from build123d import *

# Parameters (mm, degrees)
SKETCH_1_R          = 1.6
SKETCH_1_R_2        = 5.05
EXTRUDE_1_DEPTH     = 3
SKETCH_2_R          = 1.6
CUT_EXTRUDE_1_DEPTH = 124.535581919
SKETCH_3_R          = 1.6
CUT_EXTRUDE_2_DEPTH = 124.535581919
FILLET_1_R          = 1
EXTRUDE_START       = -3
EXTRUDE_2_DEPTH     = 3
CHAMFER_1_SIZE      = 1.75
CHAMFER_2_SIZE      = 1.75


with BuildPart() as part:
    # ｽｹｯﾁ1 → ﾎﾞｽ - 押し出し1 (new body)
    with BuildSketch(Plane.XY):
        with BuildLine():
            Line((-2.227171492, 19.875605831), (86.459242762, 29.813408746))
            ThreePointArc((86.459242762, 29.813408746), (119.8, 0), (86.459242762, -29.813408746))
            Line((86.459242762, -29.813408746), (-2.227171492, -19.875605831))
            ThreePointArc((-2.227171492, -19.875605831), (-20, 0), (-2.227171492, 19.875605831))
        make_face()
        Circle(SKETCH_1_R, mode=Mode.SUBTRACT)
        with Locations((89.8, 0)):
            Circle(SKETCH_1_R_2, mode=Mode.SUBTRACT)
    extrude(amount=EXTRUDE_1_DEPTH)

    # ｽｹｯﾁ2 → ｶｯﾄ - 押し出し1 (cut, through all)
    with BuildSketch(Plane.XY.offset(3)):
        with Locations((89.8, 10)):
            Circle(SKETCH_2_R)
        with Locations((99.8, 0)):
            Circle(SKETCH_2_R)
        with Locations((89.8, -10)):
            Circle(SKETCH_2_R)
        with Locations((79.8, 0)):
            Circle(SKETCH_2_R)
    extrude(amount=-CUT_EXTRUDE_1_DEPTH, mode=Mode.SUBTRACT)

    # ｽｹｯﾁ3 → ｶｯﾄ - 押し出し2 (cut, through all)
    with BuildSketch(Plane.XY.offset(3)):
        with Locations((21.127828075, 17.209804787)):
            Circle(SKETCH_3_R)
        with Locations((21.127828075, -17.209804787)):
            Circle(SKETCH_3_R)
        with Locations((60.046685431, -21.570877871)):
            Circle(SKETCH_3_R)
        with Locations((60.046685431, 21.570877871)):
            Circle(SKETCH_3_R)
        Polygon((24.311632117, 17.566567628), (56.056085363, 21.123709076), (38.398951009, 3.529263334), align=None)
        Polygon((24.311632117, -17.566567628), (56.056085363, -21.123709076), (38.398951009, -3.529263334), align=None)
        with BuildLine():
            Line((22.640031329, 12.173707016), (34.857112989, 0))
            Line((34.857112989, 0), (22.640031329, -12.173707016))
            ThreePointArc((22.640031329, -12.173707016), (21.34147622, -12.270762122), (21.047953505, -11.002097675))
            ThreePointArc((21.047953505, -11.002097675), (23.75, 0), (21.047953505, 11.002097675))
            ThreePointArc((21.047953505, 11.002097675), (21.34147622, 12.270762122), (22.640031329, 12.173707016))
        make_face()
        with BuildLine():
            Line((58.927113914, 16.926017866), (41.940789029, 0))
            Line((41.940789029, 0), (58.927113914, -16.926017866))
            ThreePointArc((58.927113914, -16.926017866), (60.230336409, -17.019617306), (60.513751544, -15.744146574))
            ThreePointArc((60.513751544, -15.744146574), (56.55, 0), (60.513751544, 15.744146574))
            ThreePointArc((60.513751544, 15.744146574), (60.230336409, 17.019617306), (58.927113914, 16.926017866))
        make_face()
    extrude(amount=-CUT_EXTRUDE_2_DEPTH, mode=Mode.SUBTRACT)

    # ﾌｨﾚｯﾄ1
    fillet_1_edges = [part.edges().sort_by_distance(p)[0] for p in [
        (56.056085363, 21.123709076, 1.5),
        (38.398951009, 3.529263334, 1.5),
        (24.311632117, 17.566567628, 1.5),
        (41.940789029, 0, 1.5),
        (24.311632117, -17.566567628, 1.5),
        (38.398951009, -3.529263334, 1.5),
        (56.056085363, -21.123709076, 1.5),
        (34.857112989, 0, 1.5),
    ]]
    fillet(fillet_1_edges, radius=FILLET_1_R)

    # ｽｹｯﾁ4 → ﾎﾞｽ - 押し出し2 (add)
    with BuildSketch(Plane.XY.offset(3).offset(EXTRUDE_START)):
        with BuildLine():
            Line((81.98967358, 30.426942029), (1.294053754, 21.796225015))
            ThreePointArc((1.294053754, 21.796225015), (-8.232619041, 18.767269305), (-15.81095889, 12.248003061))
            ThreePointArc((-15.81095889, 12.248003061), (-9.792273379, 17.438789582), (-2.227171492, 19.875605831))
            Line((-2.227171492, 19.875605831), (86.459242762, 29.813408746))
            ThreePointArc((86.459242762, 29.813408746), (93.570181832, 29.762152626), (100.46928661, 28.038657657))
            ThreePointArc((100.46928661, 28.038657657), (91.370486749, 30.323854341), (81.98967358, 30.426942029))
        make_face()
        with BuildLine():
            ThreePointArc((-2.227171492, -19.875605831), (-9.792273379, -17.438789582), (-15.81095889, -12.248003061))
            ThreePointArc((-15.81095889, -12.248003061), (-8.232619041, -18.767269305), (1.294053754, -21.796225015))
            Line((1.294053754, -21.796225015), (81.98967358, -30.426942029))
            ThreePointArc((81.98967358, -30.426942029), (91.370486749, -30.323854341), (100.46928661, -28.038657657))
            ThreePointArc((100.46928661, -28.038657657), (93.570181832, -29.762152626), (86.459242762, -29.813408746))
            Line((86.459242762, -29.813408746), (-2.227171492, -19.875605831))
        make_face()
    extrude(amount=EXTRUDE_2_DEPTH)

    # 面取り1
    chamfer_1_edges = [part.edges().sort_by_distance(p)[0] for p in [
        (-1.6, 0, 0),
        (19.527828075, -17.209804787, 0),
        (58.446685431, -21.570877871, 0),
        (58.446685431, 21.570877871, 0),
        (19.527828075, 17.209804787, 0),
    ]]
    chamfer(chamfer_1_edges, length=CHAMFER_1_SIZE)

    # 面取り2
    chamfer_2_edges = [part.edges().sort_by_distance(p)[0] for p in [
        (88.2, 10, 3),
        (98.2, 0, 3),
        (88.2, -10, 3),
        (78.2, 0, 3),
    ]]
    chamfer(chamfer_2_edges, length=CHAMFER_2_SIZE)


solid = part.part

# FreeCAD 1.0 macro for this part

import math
import FreeCAD as App
import Part
import Sketcher
Q = App.Units.Quantity


def edges_at(feature, points):
    """Names of the edges that pass closest to the given points."""
    edges = feature.Shape.Edges
    near = lambda p: min(range(len(edges)), key=lambda i: edges[i].distToShape(Part.Vertex(*p))[0])
    return sorted({f"Edge{near(p) + 1}" for p in points})

doc = App.newDocument("Part")
params = doc.addObject("Spreadsheet::Sheet", "Params")
for row, (alias, value) in enumerate([
    ("sketch1_radius", "20 mm"),
    ("sketch1_radius2", "30 mm"),
    ("sketch1_diameter", "10.1 mm"),
    ("sketch1_diameter2", "3.2 mm"),
    ("pad1_length", "3 mm"),
    ("sketch2_diameter", "3.2 mm"),
    ("sketch3_radius", "1 mm"),
    ("sketch3_diameter", "3.2 mm"),
    ("sketch3_radius2", "23.75 mm"),
    ("sketch3_radius3", "33.25 mm"),
    ("fillet_radius", "1 mm"),
    ("sketch4_radius", "25 mm"),
    ("sketch4_radius2", "20 mm"),
    ("sketch4_radius3", "30 mm"),
    ("sketch4_radius4", "40 mm"),
    ("pad2_length", "3 mm"),
    ("chamfer_size", "1.75 mm"),
    ("chamfer2_size", "1.75 mm"),
], start=1):
    params.set(f"A{row}", alias)
    params.set(f"B{row}", "=" + value)
    params.setAlias(f"B{row}", alias)

body = doc.addObject("PartDesign::Body", "Body")

# Sketch on XY plane
sketch1 = doc.addObject("Sketcher::SketchObject", "Sketch")
body.addObject(sketch1)
sketch1.AttachmentSupport = (doc.XY_Plane, [""])
sketch1.MapMode = "FlatFace"
sketch1.addGeometry(Part.LineSegment(App.Vector(86.459243, 29.813409, 0), App.Vector(-2.227171, 19.875606, 0)), False)
sketch1.addGeometry(Part.ArcOfCircle(Part.Circle(App.Vector(0, 0, 0), App.Vector(0, 0, 1), 20), math.radians(96.393637), math.radians(263.606363)), False)
sketch1.addGeometry(Part.LineSegment(App.Vector(-2.227171, -19.875606, 0), App.Vector(86.459243, -29.813409, 0)), False)
sketch1.addGeometry(Part.ArcOfCircle(Part.Circle(App.Vector(89.8, 0, 0), App.Vector(0, 0, 1), 30), math.radians(-96.393637), math.radians(96.393637)), False)
sketch1.addGeometry(Part.Circle(App.Vector(89.8, 0, 0), App.Vector(0, 0, 1), 5.05), False)
sketch1.addGeometry(Part.Circle(App.Vector(0, 0, 0), App.Vector(0, 0, 1), 1.6), False)
sketch1.addConstraint(Sketcher.Constraint("Tangent", 0, 2, 1, 1))
sketch1.addConstraint(Sketcher.Constraint("Tangent", 1, 2, 2, 1))
sketch1.addConstraint(Sketcher.Constraint("Tangent", 2, 2, 3, 1))
sketch1.addConstraint(Sketcher.Constraint("Tangent", 3, 2, 0, 1))
sketch1.addConstraint(Sketcher.Constraint("Coincident", 1, 3, -1, 1))
sketch1.addConstraint(Sketcher.Constraint("Coincident", 5, 3, -1, 1))
sketch1.addConstraint(Sketcher.Constraint("Coincident", 4, 3, 3, 3))
sketch1.addConstraint(Sketcher.Constraint("PointOnObject", 3, 3, -1))
sketch1.addConstraint(Sketcher.Constraint("Radius", 1, Q("20 mm")))
sketch1.addConstraint(Sketcher.Constraint("Radius", 3, Q("30 mm")))
sketch1.addConstraint(Sketcher.Constraint("Diameter", 4, Q("10.1 mm")))
sketch1.addConstraint(Sketcher.Constraint("Diameter", 5, Q("3.2 mm")))
sketch1.addConstraint(Sketcher.Constraint("DistanceX", -1, 1, 3, 3, Q("89.8 mm")))
sketch1.setExpression("Constraints[8]", "Params.sketch1_radius")
sketch1.setExpression("Constraints[9]", "Params.sketch1_radius2")
sketch1.setExpression("Constraints[10]", "Params.sketch1_diameter")
sketch1.setExpression("Constraints[11]", "Params.sketch1_diameter2")
pad1 = doc.addObject("PartDesign::Pad", "Pad")
body.addObject(pad1)
pad1.Profile = sketch1
pad1.setExpression("Length", "Params.pad1_length")

# Sketch on XY plane
sketch2 = doc.addObject("Sketcher::SketchObject", "Sketch001")
body.addObject(sketch2)
sketch2.AttachmentSupport = (doc.XY_Plane, [""])
sketch2.MapMode = "FlatFace"
sketch2.AttachmentOffset = App.Placement(App.Vector(0, 0, 3), App.Rotation())
sketch2.addGeometry(Part.Circle(App.Vector(89.8, 10, 0), App.Vector(0, 0, 1), 1.6), False)
sketch2.addGeometry(Part.Circle(App.Vector(99.8, 0, 0), App.Vector(0, 0, 1), 1.6), False)
sketch2.addGeometry(Part.Circle(App.Vector(89.8, -10, 0), App.Vector(0, 0, 1), 1.6), False)
sketch2.addGeometry(Part.Circle(App.Vector(79.8, 0, 0), App.Vector(0, 0, 1), 1.6), False)
sketch2.addConstraint(Sketcher.Constraint("Equal", 0, 1))
sketch2.addConstraint(Sketcher.Constraint("Equal", 1, 2))
sketch2.addConstraint(Sketcher.Constraint("Equal", 2, 3))
sketch2.addConstraint(Sketcher.Constraint("Symmetric", 0, 3, 2, 3, -1))
sketch2.addConstraint(Sketcher.Constraint("PointOnObject", 1, 3, -1))
sketch2.addConstraint(Sketcher.Constraint("PointOnObject", 3, 3, -1))
sketch2.addConstraint(Sketcher.Constraint("Diameter", 0, Q("3.2 mm")))
sketch2.addConstraint(Sketcher.Constraint("DistanceY", -1, 1, 0, 3, Q("10 mm")))
sketch2.addConstraint(Sketcher.Constraint("DistanceX", 0, 3, 1, 3, Q("10 mm")))
sketch2.addConstraint(Sketcher.Constraint("DistanceX", 3, 3, 0, 3, Q("10 mm")))
sketch2.addConstraint(Sketcher.Constraint("DistanceX", -1, 1, 0, 3, Q("89.8 mm")))
sketch2.setExpression("Constraints[6]", "Params.sketch2_diameter")
pocket1 = doc.addObject("PartDesign::Pocket", "Pocket")
body.addObject(pocket1)
pocket1.Profile = sketch2
pocket1.Type = "ThroughAll"

# Sketch on XY plane
sketch3 = doc.addObject("Sketcher::SketchObject", "Sketch002")
body.addObject(sketch3)
sketch3.AttachmentSupport = (doc.XY_Plane, [""])
sketch3.MapMode = "FlatFace"
sketch3.AttachmentOffset = App.Placement(App.Vector(0, 0, 3), App.Rotation())
sketch3.addGeometry(Part.Circle(App.Vector(21.127828, 17.209805, 0), App.Vector(0, 0, 1), 1.6), False)
sketch3.addGeometry(Part.Circle(App.Vector(21.127828, -17.209805, 0), App.Vector(0, 0, 1), 1.6), False)
sketch3.addGeometry(Part.Circle(App.Vector(60.046685, -21.570878, 0), App.Vector(0, 0, 1), 1.6), False)
sketch3.addGeometry(Part.Circle(App.Vector(60.046685, 21.570878, 0), App.Vector(0, 0, 1), 1.6), False)
sketch3.addGeometry(Part.LineSegment(App.Vector(56.056085, 21.123709, 0), App.Vector(24.311632, 17.566568, 0)), False)
sketch3.addGeometry(Part.LineSegment(App.Vector(24.311632, 17.566568, 0), App.Vector(38.398951, 3.529263, 0)), False)
sketch3.addGeometry(Part.LineSegment(App.Vector(38.398951, 3.529263, 0), App.Vector(56.056085, 21.123709, 0)), False)
sketch3.addGeometry(Part.LineSegment(App.Vector(24.311632, -17.566568, 0), App.Vector(56.056085, -21.123709, 0)), False)
sketch3.addGeometry(Part.LineSegment(App.Vector(56.056085, -21.123709, 0), App.Vector(38.398951, -3.529263, 0)), False)
sketch3.addGeometry(Part.LineSegment(App.Vector(38.398951, -3.529263, 0), App.Vector(24.311632, -17.566568, 0)), False)
sketch3.addGeometry(Part.LineSegment(App.Vector(34.857113, 0, 0), App.Vector(22.640031, 12.173707, 0)), False)
sketch3.addGeometry(Part.ArcOfCircle(Part.Circle(App.Vector(21.934183, 11.465344, 0), App.Vector(0, 0, 1), 1), math.radians(45.10189), math.radians(207.596779)), False)
sketch3.addGeometry(Part.ArcOfCircle(Part.Circle(App.Vector(0, 0, 0), App.Vector(0, 0, 1), 23.75), math.radians(-27.596779), math.radians(27.596779)), False)
sketch3.addGeometry(Part.ArcOfCircle(Part.Circle(App.Vector(21.934183, -11.465344, 0), App.Vector(0, 0, 1), 1), math.radians(152.403221), math.radians(314.89811)), False)
sketch3.addGeometry(Part.LineSegment(App.Vector(22.640031, -12.173707, 0), App.Vector(34.857113, 0, 0)), False)
sketch3.addGeometry(Part.LineSegment(App.Vector(58.927114, 16.926018, 0), App.Vector(41.940789, 0, 0)), False)
sketch3.addGeometry(Part.LineSegment(App.Vector(41.940789, 0, 0), App.Vector(58.927114, -16.926018, 0)), False)
sketch3.addGeometry(Part.ArcOfCircle(Part.Circle(App.Vector(59.632962, -16.217655, 0), App.Vector(0, 0, 1), 1), math.radians(-134.89811), math.radians(28.262261)), False)
sketch3.addGeometry(Part.ArcOfCircle(Part.Circle(App.Vector(89.8, 0, 0), App.Vector(0, 0, 1), 33.25), math.radians(151.737739), math.radians(208.262261)), False)
sketch3.addGeometry(Part.ArcOfCircle(Part.Circle(App.Vector(59.632962, 16.217655, 0), App.Vector(0, 0, 1), 1), math.radians(-28.262261), math.radians(134.89811)), False)
sketch3.addConstraint(Sketcher.Constraint("Coincident", 4, 2, 5, 1))
sketch3.addConstraint(Sketcher.Constraint("Coincident", 5, 2, 6, 1))
sketch3.addConstraint(Sketcher.Constraint("Coincident", 6, 2, 4, 1))
sketch3.addConstraint(Sketcher.Constraint("Coincident", 7, 2, 8, 1))
sketch3.addConstraint(Sketcher.Constraint("Coincident", 8, 2, 9, 1))
sketch3.addConstraint(Sketcher.Constraint("Coincident", 9, 2, 7, 1))
sketch3.addConstraint(Sketcher.Constraint("Tangent", 10, 2, 11, 1))
sketch3.addConstraint(Sketcher.Constraint("Tangent", 11, 2, 12, 2))
sketch3.addConstraint(Sketcher.Constraint("Tangent", 12, 1, 13, 1))
sketch3.addConstraint(Sketcher.Constraint("Tangent", 13, 2, 14, 1))
sketch3.addConstraint(Sketcher.Constraint("Coincident", 14, 2, 10, 1))
sketch3.addConstraint(Sketcher.Constraint("Coincident", 15, 2, 16, 1))
sketch3.addConstraint(Sketcher.Constraint("Tangent", 16, 2, 17, 1))
sketch3.addConstraint(Sketcher.Constraint("Tangent", 17, 2, 18, 2))
sketch3.addConstraint(Sketcher.Constraint("Tangent", 18, 1, 19, 1))
sketch3.addConstraint(Sketcher.Constraint("Tangent", 19, 2, 15, 1))
sketch3.addConstraint(Sketcher.Constraint("Coincident", 12, 3, -1, 1))
sketch3.addConstraint(Sketcher.Constraint("Equal", 0, 1))
sketch3.addConstraint(Sketcher.Constraint("Equal", 1, 2))
sketch3.addConstraint(Sketcher.Constraint("Equal", 2, 3))
sketch3.addConstraint(Sketcher.Constraint("Equal", 11, 13))
sketch3.addConstraint(Sketcher.Constraint("Equal", 13, 17))
sketch3.addConstraint(Sketcher.Constraint("Equal", 17, 19))
sketch3.addConstraint(Sketcher.Constraint("Symmetric", 0, 3, 1, 3, -1))
sketch3.addConstraint(Sketcher.Constraint("Symmetric", 2, 3, 3, 3, -1))
sketch3.addConstraint(Sketcher.Constraint("Symmetric", 17, 3, 19, 3, -1))
sketch3.addConstraint(Sketcher.Constraint("Symmetric", 6, 2, 7, 2, -1))
sketch3.addConstraint(Sketcher.Constraint("Symmetric", 5, 2, 8, 2, -1))
sketch3.addConstraint(Sketcher.Constraint("Symmetric", 4, 2, 9, 2, -1))
sketch3.addConstraint(Sketcher.Constraint("Symmetric", 10, 2, 13, 2, -1))
sketch3.addConstraint(Sketcher.Constraint("PointOnObject", 15, 2, -1))
sketch3.addConstraint(Sketcher.Constraint("Parallel", 5, 8))
sketch3.addConstraint(Sketcher.Constraint("Parallel", 8, 10))
sketch3.addConstraint(Sketcher.Constraint("Parallel", 14, 15))
sketch3.addConstraint(Sketcher.Constraint("Radius", 11, Q("1 mm")))
sketch3.addConstraint(Sketcher.Constraint("Diameter", 0, Q("3.2 mm")))
sketch3.addConstraint(Sketcher.Constraint("Radius", 12, Q("23.75 mm")))
sketch3.addConstraint(Sketcher.Constraint("Radius", 18, Q("33.25 mm")))
sketch3.addConstraint(Sketcher.Constraint("DistanceX", -1, 1, 18, 3, Q("89.8 mm")))
sketch3.addConstraint(Sketcher.Constraint("DistanceY", 17, 3, 11, 3, Q("27.682999 mm")))
sketch3.addConstraint(Sketcher.Constraint("DistanceX", 6, 2, 3, 3, Q("3.9906 mm")))
sketch3.addConstraint(Sketcher.Constraint("DistanceX", 10, 2, 4, 2, Q("1.671601 mm")))
sketch3.addConstraint(Sketcher.Constraint("DistanceX", 5, 2, 18, 1, Q("22.114801 mm")))
sketch3.addConstraint(Sketcher.Constraint("Distance", 4, Q("31.94313 mm")))
sketch3.addConstraint(Sketcher.Constraint("Distance", 6, Q("24.926671 mm")))
sketch3.addConstraint(Sketcher.Constraint("Distance", 10, Q("17.246919 mm")))
sketch3.addConstraint(Sketcher.Constraint("DistanceX", -1, 1, 0, 3, Q("21.127828 mm")))
sketch3.addConstraint(Sketcher.Constraint("DistanceY", -1, 1, 6, 2, Q("21.123709 mm")))
sketch3.addConstraint(Sketcher.Constraint("DistanceY", 1, 3, 0, 3, Q("34.41961 mm")))
sketch3.addConstraint(Sketcher.Constraint("DistanceY", 2, 3, 11, 3, Q("33.036222 mm")))
sketch3.setExpression("Constraints[34]", "Params.sketch3_radius")
sketch3.setExpression("Constraints[35]", "Params.sketch3_diameter")
sketch3.setExpression("Constraints[36]", "Params.sketch3_radius2")
sketch3.setExpression("Constraints[37]", "Params.sketch3_radius3")
pocket2 = doc.addObject("PartDesign::Pocket", "Pocket001")
body.addObject(pocket2)
pocket2.Profile = sketch3
pocket2.Type = "ThroughAll"
doc.recompute()

fillet = doc.addObject("PartDesign::Fillet", "Fillet")
body.addObject(fillet)
fillet.Base = (pocket2, edges_at(pocket2, [
    (56.056, 21.124, 1.5),
    (38.399, 3.529, 1.5),
    (24.312, 17.567, 1.5),
    (41.941, 0, 1.5),
    (24.312, -17.567, 1.5),
    (38.399, -3.529, 1.5),
    (56.056, -21.124, 1.5),
    (34.857, 0, 1.5),
]))
fillet.setExpression("Radius", "Params.fillet_radius")

# Sketch on XY plane
sketch4 = doc.addObject("Sketcher::SketchObject", "Sketch003")
body.addObject(sketch4)
sketch4.AttachmentSupport = (doc.XY_Plane, [""])
sketch4.MapMode = "FlatFace"
sketch4.addGeometry(Part.LineSegment(App.Vector(81.989674, 30.426942, 0), App.Vector(1.294054, 21.796225, 0)), False)
sketch4.addGeometry(Part.ArcOfCircle(Part.Circle(App.Vector(3.95274, -3.062001, 0), App.Vector(0, 0, 1), 25), math.radians(96.104804), math.radians(142.236747)), False)
sketch4.addGeometry(Part.ArcOfCircle(Part.Circle(App.Vector(0, 0, 0), App.Vector(0, 0, 1), 20), math.radians(96.393637), math.radians(142.236747)), False)
sketch4.addGeometry(Part.LineSegment(App.Vector(-2.227171, 19.875606, 0), App.Vector(86.459243, 29.813409, 0)), False)
sketch4.addGeometry(Part.ArcOfCircle(Part.Circle(App.Vector(89.8, 0, 0), App.Vector(0, 0, 1), 30), math.radians(69.167149), math.radians(96.393637)), False)
sketch4.addGeometry(Part.ArcOfCircle(Part.Circle(App.Vector(86.243571, -9.346219, 0), App.Vector(0, 0, 1), 40), math.radians(69.167149), math.radians(96.104804)), False)
sketch4.addGeometry(Part.ArcOfCircle(Part.Circle(App.Vector(0, 0, 0), App.Vector(0, 0, 1), 20), math.radians(-142.236747), math.radians(-96.393637)), False)
sketch4.addGeometry(Part.ArcOfCircle(Part.Circle(App.Vector(3.95274, 3.062001, 0), App.Vector(0, 0, 1), 25), math.radians(-142.236747), math.radians(-96.104804)), False)
sketch4.addGeometry(Part.LineSegment(App.Vector(1.294054, -21.796225, 0), App.Vector(81.989674, -30.426942, 0)), False)
sketch4.addGeometry(Part.ArcOfCircle(Part.Circle(App.Vector(86.243571, 9.346219, 0), App.Vector(0, 0, 1), 40), math.radians(-96.104804), math.radians(-69.167149)), False)
sketch4.addGeometry(Part.ArcOfCircle(Part.Circle(App.Vector(89.8, 0, 0), App.Vector(0, 0, 1), 30), math.radians(-96.393637), math.radians(-69.167149)), False)
sketch4.addGeometry(Part.LineSegment(App.Vector(86.459243, -29.813409, 0), App.Vector(-2.227171, -19.875606, 0)), False)
sketch4.addConstraint(Sketcher.Constraint("Tangent", 0, 2, 1, 1))
sketch4.addConstraint(Sketcher.Constraint("Tangent", 1, 2, 2, 2))
sketch4.addConstraint(Sketcher.Constraint("Tangent", 2, 1, 3, 1))
sketch4.addConstraint(Sketcher.Constraint("Tangent", 3, 2, 4, 2))
sketch4.addConstraint(Sketcher.Constraint("Tangent", 4, 1, 5, 1))
sketch4.addConstraint(Sketcher.Constraint("Tangent", 5, 2, 0, 1))
sketch4.addConstraint(Sketcher.Constraint("Tangent", 6, 1, 7, 1))
sketch4.addConstraint(Sketcher.Constraint("Tangent", 7, 2, 8, 1))
sketch4.addConstraint(Sketcher.Constraint("Tangent", 8, 2, 9, 1))
sketch4.addConstraint(Sketcher.Constraint("Tangent", 9, 2, 10, 2))
sketch4.addConstraint(Sketcher.Constraint("Tangent", 10, 1, 11, 1))
sketch4.addConstraint(Sketcher.Constraint("Tangent", 11, 2, 6, 2))
sketch4.addConstraint(Sketcher.Constraint("Coincident", 2, 3, -1, 1))
sketch4.addConstraint(Sketcher.Constraint("Coincident", 6, 3, -1, 1))
sketch4.addConstraint(Sketcher.Constraint("Coincident", 10, 3, 4, 3))
sketch4.addConstraint(Sketcher.Constraint("Equal", 2, 6))
sketch4.addConstraint(Sketcher.Constraint("Equal", 1, 7))
sketch4.addConstraint(Sketcher.Constraint("Equal", 5, 9))
sketch4.addConstraint(Sketcher.Constraint("Equal", 4, 10))
sketch4.addConstraint(Sketcher.Constraint("Symmetric", 5, 3, 9, 3, -1))
sketch4.addConstraint(Sketcher.Constraint("Vertical", 1, 3, 7, 3))
sketch4.addConstraint(Sketcher.Constraint("Radius", 1, Q("25 mm")))
sketch4.addConstraint(Sketcher.Constraint("Radius", 2, Q("20 mm")))
sketch4.addConstraint(Sketcher.Constraint("Radius", 4, Q("30 mm")))
sketch4.addConstraint(Sketcher.Constraint("Radius", 5, Q("40 mm")))
sketch4.addConstraint(Sketcher.Constraint("DistanceX", -1, 1, 4, 3, Q("89.8 mm")))
sketch4.addConstraint(Sketcher.Constraint("DistanceY", 1, 3, -1, 1, Q("3.062001 mm")))
sketch4.addConstraint(Sketcher.Constraint("DistanceX", -1, 1, 5, 3, Q("86.243571 mm")))
sketch4.setExpression("Constraints[21]", "Params.sketch4_radius")
sketch4.setExpression("Constraints[22]", "Params.sketch4_radius2")
sketch4.setExpression("Constraints[23]", "Params.sketch4_radius3")
sketch4.setExpression("Constraints[24]", "Params.sketch4_radius4")
pad2 = doc.addObject("PartDesign::Pad", "Pad001")
body.addObject(pad2)
pad2.Profile = sketch4
pad2.setExpression("Length", "Params.pad2_length")
doc.recompute()

chamfer = doc.addObject("PartDesign::Chamfer", "Chamfer")
body.addObject(chamfer)
chamfer.Base = (pad2, edges_at(pad2, [
    (-1.6, 0, 0),
    (19.528, -17.21, 0),
    (58.447, -21.571, 0),
    (58.447, 21.571, 0),
    (19.528, 17.21, 0),
]))
chamfer.setExpression("Size", "Params.chamfer_size")
doc.recompute()

chamfer2 = doc.addObject("PartDesign::Chamfer", "Chamfer001")
body.addObject(chamfer2)
chamfer2.Base = (chamfer, edges_at(chamfer, [
    (88.2, 10, 3),
    (98.2, 0, 3),
    (88.2, -10, 3),
    (78.2, 0, 3),
]))
chamfer2.setExpression("Size", "Params.chamfer2_size")

doc.recompute()
